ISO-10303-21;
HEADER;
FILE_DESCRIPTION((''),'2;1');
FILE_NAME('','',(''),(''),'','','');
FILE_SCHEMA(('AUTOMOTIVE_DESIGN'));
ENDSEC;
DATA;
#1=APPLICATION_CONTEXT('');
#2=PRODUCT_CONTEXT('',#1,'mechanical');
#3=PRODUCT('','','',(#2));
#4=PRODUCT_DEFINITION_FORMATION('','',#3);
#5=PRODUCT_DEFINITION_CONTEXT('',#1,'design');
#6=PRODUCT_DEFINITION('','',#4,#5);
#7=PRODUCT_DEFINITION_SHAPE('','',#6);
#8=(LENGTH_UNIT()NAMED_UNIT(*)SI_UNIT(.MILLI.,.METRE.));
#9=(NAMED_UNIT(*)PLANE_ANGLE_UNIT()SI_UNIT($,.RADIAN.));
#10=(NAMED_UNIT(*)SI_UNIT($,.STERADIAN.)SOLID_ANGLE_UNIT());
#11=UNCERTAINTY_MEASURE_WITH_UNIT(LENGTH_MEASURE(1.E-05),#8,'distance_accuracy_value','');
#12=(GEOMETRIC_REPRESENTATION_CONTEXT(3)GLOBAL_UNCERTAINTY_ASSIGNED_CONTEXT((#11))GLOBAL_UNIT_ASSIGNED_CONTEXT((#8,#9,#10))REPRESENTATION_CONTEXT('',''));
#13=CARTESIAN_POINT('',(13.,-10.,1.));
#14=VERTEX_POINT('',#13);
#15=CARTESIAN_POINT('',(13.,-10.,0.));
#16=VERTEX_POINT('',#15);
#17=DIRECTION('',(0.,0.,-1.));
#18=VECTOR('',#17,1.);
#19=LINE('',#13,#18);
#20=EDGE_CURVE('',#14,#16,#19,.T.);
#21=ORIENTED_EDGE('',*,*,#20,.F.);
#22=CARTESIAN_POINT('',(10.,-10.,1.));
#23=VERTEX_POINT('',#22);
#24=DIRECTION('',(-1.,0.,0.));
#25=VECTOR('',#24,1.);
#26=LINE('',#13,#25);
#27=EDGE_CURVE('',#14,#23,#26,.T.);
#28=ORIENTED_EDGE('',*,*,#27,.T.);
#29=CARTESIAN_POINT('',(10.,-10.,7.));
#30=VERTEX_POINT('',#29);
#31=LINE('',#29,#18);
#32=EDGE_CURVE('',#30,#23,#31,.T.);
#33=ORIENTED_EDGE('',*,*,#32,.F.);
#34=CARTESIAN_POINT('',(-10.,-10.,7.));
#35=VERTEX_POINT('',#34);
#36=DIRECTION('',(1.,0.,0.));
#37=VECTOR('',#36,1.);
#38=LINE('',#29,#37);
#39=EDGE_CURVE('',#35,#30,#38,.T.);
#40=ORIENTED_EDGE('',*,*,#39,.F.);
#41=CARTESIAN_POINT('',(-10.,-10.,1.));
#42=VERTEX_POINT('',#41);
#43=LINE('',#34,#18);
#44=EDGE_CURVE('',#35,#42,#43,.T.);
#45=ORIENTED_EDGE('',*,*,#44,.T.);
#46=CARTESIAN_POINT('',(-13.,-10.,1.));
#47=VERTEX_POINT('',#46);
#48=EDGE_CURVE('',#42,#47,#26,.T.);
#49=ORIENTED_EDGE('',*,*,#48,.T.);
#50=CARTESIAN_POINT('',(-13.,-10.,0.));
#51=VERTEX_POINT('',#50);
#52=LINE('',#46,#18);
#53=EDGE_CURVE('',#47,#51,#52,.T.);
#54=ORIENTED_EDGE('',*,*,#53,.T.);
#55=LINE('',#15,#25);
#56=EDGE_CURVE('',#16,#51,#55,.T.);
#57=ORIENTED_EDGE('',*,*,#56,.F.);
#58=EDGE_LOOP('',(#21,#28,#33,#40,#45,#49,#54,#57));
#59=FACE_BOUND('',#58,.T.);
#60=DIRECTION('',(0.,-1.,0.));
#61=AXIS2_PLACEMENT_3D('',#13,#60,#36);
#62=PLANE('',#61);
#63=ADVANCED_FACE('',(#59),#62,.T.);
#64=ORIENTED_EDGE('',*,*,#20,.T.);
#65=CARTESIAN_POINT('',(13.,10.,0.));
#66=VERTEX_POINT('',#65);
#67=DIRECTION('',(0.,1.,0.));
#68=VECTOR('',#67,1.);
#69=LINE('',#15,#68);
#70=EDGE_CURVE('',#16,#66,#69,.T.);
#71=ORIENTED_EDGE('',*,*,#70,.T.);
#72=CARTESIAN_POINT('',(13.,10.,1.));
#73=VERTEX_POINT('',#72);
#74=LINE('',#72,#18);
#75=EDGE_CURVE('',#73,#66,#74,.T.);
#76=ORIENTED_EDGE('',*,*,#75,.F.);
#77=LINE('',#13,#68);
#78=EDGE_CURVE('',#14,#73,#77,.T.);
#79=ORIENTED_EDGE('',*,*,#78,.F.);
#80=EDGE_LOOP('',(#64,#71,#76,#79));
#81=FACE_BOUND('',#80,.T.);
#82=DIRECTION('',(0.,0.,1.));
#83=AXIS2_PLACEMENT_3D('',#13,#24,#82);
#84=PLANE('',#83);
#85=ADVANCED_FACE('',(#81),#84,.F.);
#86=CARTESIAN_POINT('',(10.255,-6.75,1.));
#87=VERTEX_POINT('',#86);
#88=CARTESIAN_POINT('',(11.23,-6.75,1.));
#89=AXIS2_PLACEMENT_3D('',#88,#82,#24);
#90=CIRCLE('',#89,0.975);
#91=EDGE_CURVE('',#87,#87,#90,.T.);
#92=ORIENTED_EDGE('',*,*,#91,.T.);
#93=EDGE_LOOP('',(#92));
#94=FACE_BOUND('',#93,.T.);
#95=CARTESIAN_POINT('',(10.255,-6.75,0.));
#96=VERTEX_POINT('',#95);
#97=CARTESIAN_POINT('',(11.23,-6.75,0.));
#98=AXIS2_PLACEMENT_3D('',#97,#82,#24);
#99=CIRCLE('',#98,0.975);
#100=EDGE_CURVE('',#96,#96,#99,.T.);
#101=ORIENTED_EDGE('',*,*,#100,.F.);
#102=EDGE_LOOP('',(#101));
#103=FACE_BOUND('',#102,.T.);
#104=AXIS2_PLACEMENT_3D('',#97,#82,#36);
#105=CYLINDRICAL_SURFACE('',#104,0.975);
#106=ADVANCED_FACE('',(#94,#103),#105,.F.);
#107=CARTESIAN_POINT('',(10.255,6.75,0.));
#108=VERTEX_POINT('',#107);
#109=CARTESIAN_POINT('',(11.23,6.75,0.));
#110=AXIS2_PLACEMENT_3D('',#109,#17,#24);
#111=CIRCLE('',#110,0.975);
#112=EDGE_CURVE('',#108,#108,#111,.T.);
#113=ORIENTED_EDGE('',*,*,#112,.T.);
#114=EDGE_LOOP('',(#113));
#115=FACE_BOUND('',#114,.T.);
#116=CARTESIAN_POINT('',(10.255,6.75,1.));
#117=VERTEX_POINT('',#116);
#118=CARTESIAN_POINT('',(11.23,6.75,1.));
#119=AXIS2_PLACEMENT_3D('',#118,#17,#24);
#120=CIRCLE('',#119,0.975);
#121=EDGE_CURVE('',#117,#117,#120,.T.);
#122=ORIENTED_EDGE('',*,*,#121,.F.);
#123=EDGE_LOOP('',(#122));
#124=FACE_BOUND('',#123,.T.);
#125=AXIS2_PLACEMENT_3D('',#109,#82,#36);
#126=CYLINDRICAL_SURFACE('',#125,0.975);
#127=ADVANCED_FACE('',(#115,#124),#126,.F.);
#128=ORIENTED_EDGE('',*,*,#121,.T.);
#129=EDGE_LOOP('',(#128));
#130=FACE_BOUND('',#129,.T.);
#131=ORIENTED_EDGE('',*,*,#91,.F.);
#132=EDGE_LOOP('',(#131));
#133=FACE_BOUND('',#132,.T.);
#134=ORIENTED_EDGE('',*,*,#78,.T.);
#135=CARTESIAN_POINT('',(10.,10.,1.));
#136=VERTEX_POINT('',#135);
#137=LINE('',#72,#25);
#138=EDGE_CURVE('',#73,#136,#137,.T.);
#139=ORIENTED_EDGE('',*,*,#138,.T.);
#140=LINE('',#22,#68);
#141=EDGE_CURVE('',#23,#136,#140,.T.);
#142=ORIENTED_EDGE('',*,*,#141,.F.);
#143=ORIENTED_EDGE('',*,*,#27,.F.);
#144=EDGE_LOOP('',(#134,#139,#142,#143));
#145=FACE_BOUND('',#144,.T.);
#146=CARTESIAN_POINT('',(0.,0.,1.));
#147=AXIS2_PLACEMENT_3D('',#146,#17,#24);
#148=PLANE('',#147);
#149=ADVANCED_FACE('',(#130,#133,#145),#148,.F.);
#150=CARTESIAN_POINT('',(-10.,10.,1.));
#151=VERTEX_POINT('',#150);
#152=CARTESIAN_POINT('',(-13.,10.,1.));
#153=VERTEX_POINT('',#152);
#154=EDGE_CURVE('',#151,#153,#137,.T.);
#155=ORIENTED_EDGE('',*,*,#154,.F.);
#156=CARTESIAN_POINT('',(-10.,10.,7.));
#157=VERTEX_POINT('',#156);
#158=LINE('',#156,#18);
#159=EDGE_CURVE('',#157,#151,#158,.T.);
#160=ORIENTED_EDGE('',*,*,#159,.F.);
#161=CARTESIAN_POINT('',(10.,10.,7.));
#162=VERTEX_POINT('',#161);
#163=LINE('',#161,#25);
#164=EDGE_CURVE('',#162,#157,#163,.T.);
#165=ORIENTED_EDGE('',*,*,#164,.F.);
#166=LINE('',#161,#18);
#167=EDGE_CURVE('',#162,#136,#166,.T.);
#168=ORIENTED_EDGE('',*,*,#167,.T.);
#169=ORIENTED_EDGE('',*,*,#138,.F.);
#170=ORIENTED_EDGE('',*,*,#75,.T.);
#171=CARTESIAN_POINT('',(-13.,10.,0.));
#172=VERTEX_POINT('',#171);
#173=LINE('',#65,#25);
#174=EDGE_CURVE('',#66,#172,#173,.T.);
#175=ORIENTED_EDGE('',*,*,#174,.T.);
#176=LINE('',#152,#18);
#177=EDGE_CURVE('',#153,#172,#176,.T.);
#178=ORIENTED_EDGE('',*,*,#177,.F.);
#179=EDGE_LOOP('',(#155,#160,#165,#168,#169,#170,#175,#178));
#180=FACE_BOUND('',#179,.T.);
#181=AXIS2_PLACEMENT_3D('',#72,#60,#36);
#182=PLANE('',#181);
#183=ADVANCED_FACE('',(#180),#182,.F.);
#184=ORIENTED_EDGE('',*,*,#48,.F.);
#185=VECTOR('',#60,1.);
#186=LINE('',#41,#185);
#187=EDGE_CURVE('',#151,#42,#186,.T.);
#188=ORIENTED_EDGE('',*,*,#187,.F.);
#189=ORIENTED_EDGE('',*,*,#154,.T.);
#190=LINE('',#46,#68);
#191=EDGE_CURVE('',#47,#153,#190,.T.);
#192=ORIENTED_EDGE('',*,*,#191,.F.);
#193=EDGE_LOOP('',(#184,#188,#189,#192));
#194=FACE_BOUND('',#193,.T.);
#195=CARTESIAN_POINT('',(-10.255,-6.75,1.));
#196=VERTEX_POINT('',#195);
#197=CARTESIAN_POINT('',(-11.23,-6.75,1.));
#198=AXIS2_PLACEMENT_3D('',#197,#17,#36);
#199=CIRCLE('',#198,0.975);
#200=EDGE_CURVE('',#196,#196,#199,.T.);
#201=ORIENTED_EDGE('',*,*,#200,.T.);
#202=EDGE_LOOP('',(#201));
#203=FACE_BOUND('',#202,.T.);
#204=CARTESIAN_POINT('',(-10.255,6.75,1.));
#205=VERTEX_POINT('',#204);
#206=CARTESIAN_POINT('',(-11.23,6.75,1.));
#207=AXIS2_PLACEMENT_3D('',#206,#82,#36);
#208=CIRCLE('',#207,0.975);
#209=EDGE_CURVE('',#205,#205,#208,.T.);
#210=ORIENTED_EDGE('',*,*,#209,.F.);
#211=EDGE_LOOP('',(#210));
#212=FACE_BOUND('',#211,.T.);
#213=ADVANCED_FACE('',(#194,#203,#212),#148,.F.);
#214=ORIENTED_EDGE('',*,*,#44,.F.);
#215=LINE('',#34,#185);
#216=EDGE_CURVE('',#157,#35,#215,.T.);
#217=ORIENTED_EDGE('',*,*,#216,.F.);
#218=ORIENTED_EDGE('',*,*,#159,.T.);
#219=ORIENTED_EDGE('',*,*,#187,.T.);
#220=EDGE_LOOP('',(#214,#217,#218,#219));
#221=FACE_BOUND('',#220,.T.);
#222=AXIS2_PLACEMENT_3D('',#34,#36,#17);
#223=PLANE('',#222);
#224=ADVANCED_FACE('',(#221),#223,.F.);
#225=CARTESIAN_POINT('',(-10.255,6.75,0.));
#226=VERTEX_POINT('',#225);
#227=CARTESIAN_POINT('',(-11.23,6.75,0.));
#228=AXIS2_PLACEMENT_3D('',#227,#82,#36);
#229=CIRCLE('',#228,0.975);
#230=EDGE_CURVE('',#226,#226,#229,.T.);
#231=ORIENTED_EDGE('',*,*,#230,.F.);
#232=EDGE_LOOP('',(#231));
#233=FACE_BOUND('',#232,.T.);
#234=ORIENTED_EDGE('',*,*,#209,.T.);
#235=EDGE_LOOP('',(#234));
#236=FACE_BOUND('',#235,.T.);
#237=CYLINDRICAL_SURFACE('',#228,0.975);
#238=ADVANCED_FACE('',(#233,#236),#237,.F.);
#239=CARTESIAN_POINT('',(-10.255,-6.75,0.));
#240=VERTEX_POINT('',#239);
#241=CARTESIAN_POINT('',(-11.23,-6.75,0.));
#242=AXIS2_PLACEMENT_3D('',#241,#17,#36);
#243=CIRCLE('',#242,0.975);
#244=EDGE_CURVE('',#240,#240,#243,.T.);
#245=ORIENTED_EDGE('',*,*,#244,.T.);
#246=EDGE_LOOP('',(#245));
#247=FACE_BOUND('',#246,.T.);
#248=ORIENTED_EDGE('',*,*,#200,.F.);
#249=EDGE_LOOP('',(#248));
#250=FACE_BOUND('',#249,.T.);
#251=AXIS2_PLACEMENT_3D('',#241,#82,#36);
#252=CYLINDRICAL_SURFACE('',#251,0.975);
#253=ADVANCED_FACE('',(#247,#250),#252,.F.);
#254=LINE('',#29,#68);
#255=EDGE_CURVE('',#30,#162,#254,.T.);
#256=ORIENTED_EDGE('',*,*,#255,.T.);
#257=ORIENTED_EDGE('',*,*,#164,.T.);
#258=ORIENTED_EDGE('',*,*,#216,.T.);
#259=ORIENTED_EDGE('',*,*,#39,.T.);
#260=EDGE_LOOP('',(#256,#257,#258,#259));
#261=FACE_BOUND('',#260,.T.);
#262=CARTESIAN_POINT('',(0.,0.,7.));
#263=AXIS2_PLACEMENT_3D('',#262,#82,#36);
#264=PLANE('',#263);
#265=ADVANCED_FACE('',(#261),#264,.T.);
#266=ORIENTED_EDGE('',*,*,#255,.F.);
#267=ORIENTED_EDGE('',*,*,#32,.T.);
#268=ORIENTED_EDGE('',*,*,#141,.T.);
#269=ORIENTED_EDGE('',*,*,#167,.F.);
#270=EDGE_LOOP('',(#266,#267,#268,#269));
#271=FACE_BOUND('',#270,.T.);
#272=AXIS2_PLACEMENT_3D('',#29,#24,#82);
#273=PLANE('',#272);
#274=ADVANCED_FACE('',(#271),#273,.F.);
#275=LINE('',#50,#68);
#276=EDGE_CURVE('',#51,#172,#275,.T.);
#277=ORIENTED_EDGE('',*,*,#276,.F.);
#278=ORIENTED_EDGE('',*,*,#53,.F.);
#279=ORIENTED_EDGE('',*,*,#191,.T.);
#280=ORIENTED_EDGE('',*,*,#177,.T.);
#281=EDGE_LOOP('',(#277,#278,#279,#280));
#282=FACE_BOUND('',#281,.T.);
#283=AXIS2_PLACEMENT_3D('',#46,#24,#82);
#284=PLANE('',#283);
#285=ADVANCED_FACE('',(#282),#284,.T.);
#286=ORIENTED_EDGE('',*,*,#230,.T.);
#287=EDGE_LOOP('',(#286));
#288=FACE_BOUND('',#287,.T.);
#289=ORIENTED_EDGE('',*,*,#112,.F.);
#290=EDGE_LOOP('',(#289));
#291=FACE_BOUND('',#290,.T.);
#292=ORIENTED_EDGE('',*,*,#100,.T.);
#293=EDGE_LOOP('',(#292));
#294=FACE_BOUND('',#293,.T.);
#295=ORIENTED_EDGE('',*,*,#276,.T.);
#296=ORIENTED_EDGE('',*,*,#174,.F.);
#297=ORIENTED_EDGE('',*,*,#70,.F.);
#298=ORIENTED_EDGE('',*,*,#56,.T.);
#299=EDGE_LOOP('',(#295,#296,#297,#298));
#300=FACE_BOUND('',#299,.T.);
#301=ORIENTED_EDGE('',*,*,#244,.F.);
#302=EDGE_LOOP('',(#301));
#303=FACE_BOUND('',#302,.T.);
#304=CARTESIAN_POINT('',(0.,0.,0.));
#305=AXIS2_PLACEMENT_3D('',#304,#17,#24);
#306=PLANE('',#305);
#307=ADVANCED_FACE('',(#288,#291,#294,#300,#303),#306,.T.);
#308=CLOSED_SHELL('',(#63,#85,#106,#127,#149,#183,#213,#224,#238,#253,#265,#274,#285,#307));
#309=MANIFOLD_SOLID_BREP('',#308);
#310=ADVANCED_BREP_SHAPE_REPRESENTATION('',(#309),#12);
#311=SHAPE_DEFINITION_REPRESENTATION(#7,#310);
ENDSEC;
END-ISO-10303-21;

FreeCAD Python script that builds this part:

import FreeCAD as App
import Part
import Sketcher
from FreeCAD import Vector

doc = App.newDocument("Part")
body = doc.addObject("PartDesign::Body", "Body")

sketch1 = body.newObject("Sketcher::SketchObject", "Sketch")
sketch1.AttachmentSupport = (doc.getObject("XY_Plane"), [""])
sketch1.MapMode = "FlatFace"
sketch1.addGeometry([
    Part.LineSegment(Vector(-13, 10, 0), Vector(-13, -10, 0)),
    Part.LineSegment(Vector(-13, -10, 0), Vector(13, -10, 0)),
    Part.LineSegment(Vector(13, -10, 0), Vector(13, 10, 0)),
    Part.LineSegment(Vector(13, 10, 0), Vector(-13, 10, 0)),
], False)
sketch1.addConstraint([
    Sketcher.Constraint("Coincident", 0, 2, 1, 1),
    Sketcher.Constraint("Coincident", 1, 2, 2, 1),
    Sketcher.Constraint("Coincident", 2, 2, 3, 1),
    Sketcher.Constraint("Coincident", 3, 2, 0, 1),
    Sketcher.Constraint("Vertical", 0),
    Sketcher.Constraint("Horizontal", 1),
    Sketcher.Constraint("Vertical", 2),
    Sketcher.Constraint("Horizontal", 3),
    Sketcher.Constraint("Symmetric", 0, 2, 2, 2, -1, 1),
    Sketcher.Constraint("DistanceX", 1, 1, 1, 2, 26.0),
    Sketcher.Constraint("DistanceY", 0, 2, 0, 1, 20.0),
])
pad1 = body.newObject("PartDesign::Pad", "Pad")
pad1.Profile = sketch1
pad1.Length = 1

sketch2 = body.newObject("Sketcher::SketchObject", "Sketch001")
sketch2.AttachmentSupport = (doc.getObject("XY_Plane"), [""])
sketch2.MapMode = "FlatFace"
sketch2.AttachmentOffset = App.Placement(Vector(0, 0, 1), App.Rotation())
sketch2.addGeometry([
    Part.LineSegment(Vector(-10, 10, 0), Vector(-10, -10, 0)),
    Part.LineSegment(Vector(-10, -10, 0), Vector(10, -10, 0)),
    Part.LineSegment(Vector(10, -10, 0), Vector(10, 10, 0)),
    Part.LineSegment(Vector(10, 10, 0), Vector(-10, 10, 0)),
], False)
sketch2.addConstraint([
    Sketcher.Constraint("Coincident", 0, 2, 1, 1),
    Sketcher.Constraint("Coincident", 1, 2, 2, 1),
    Sketcher.Constraint("Coincident", 2, 2, 3, 1),
    Sketcher.Constraint("Coincident", 3, 2, 0, 1),
    Sketcher.Constraint("Vertical", 0),
    Sketcher.Constraint("Horizontal", 1),
    Sketcher.Constraint("Vertical", 2),
    Sketcher.Constraint("Horizontal", 3),
    Sketcher.Constraint("Symmetric", 0, 2, 2, 2, -1, 1),
    Sketcher.Constraint("Equal", 3, 0),
    Sketcher.Constraint("DistanceX", 1, 1, 1, 2, 20.0),
])
pad2 = body.newObject("PartDesign::Pad", "Pad001")
pad2.Profile = sketch2
pad2.Length = 6

sketch3 = body.newObject("Sketcher::SketchObject", "Sketch002")
sketch3.AttachmentSupport = (doc.getObject("XY_Plane"), [""])
sketch3.MapMode = "FlatFace"
sketch3.AttachmentOffset = App.Placement(Vector(0, 0, 1), App.Rotation())
sketch3.addGeometry(Part.Circle(Vector(-11.23, 6.75, 0), Vector(0, 0, 1), 0.975), False)
sketch3.addConstraint([
    Sketcher.Constraint("Diameter", 0, 1.95),
    Sketcher.Constraint("DistanceX", 0, 3, -1, 1, 11.23),
    Sketcher.Constraint("DistanceY", -1, 1, 0, 3, 6.75),
])
pocket1 = body.newObject("PartDesign::Pocket", "Pocket")
pocket1.Profile = sketch3
pocket1.Type = "ThroughAll"
doc.recompute()

mirrored = body.newObject("PartDesign::Mirrored", "Mirrored")
mirrored.Originals = [pocket1]
mirrored.MirrorPlane = (doc.getObject("YZ_Plane"), [""])
body.Tip = mirrored
doc.recompute()

mirrored2 = body.newObject("PartDesign::Mirrored", "Mirrored001")
mirrored2.Originals = [pocket1]
mirrored2.MirrorPlane = (doc.getObject("XZ_Plane"), [""])
body.Tip = mirrored2

sketch4 = body.newObject("Sketcher::SketchObject", "Sketch003")
sketch4.AttachmentSupport = (doc.getObject("XY_Plane"), [""])
sketch4.MapMode = "FlatFace"
sketch4.AttachmentOffset = App.Placement(Vector(0, 0, 1), App.Rotation())
sketch4.addGeometry(Part.Circle(Vector(11.23, -6.75, 0), Vector(0, 0, 1), 0.975), False)
sketch4.addConstraint([
    Sketcher.Constraint("Diameter", 0, 1.95),
    Sketcher.Constraint("DistanceX", -1, 1, 0, 3, 11.23),
    Sketcher.Constraint("DistanceY", 0, 3, -1, 1, 6.75),
])
pocket2 = body.newObject("PartDesign::Pocket", "Pocket001")
pocket2.Profile = sketch4
pocket2.Type = "ThroughAll"

doc.recompute()
